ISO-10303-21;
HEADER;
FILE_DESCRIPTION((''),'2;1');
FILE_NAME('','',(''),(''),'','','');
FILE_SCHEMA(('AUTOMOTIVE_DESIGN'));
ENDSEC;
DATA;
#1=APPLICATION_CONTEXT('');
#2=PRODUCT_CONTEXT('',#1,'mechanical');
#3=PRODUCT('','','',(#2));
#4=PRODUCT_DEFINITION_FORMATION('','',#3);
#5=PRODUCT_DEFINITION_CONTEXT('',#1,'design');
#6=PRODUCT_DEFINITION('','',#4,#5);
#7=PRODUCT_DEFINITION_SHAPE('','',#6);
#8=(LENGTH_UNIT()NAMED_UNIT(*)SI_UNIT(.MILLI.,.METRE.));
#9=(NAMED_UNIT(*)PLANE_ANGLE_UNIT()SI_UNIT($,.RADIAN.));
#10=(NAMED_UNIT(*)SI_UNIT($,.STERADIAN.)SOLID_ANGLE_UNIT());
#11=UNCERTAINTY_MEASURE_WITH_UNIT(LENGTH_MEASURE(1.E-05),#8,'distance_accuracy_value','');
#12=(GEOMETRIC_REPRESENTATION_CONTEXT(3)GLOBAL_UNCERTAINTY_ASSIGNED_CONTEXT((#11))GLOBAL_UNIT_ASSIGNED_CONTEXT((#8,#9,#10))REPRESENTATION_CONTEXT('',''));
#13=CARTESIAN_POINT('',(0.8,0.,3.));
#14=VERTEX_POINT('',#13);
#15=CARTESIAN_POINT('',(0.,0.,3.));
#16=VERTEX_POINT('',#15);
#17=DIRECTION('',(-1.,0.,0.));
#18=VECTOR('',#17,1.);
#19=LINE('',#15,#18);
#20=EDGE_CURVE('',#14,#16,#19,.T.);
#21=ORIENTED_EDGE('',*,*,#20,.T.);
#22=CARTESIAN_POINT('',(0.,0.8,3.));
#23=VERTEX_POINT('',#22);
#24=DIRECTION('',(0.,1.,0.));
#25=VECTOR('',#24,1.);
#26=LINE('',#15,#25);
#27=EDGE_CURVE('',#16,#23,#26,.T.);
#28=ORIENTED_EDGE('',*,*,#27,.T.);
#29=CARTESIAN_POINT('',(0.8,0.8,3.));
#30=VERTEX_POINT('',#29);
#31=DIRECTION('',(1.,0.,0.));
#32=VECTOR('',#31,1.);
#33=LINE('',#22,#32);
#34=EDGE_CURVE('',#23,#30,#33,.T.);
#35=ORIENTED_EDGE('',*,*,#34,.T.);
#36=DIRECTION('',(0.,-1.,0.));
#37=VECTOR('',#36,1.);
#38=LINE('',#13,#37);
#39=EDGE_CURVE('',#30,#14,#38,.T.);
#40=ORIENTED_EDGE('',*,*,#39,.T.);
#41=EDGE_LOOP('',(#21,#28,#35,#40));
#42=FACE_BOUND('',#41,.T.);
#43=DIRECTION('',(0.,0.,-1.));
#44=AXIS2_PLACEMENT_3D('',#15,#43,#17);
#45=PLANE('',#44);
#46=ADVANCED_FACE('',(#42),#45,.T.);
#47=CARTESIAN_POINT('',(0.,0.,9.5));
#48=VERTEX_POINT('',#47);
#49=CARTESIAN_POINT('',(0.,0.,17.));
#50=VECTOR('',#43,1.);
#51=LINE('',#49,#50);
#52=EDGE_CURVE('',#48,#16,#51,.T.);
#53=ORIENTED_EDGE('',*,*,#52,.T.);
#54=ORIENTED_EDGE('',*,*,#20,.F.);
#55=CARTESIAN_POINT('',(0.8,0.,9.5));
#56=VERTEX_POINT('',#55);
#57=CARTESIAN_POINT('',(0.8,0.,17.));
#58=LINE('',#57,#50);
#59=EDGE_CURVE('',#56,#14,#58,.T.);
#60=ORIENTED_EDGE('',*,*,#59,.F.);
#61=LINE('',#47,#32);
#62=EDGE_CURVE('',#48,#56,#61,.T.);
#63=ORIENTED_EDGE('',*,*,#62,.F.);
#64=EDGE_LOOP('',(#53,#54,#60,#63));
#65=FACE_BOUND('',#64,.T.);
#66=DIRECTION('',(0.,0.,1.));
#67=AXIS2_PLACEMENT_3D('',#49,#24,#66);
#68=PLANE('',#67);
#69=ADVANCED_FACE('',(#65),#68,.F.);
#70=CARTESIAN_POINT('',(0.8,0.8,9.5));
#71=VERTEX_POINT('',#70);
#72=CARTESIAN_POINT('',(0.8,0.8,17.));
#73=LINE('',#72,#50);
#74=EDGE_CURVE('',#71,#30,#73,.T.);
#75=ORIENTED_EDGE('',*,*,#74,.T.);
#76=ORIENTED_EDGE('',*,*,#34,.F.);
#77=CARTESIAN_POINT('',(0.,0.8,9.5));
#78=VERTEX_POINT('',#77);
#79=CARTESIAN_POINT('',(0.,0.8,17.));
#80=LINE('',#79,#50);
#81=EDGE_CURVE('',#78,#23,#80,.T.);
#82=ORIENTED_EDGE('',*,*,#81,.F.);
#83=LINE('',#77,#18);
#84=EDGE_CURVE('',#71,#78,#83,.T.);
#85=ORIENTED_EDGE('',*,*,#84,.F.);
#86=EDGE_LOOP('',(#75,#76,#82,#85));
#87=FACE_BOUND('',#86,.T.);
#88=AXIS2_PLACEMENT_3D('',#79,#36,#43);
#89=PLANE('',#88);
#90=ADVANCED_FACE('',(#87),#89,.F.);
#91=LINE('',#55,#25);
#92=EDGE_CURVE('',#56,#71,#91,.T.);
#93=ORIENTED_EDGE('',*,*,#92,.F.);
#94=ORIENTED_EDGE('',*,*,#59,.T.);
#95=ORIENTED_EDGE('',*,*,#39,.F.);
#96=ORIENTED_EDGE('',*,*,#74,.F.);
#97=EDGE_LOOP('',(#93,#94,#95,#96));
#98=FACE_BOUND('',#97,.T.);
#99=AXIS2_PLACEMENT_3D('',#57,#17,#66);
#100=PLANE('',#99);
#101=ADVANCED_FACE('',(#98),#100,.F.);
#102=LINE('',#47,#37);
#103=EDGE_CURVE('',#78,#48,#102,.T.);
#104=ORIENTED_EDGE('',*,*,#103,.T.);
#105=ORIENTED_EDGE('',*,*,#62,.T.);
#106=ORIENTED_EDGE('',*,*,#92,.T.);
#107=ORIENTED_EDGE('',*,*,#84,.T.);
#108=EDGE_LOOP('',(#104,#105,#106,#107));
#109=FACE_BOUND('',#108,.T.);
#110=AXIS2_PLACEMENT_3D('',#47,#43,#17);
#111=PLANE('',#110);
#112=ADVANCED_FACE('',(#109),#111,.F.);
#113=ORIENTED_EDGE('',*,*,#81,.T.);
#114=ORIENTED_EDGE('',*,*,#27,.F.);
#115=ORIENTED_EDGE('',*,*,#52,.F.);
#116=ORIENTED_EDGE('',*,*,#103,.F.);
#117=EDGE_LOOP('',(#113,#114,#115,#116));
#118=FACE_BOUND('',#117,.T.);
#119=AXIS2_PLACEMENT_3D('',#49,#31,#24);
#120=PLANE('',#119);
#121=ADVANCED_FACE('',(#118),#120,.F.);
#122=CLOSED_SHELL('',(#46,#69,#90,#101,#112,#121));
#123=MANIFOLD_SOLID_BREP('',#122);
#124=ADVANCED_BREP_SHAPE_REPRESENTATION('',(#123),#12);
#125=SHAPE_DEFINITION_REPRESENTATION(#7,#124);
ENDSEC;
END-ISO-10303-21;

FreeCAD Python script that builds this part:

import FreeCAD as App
import Part
import Sketcher

V = App.Vector


def add_polygon(sketch, points):
    """Adds a closed chain of lines whose ends are joined by coincident constraints."""
    first, n = sketch.GeometryCount, len(points)
    for a, b in zip(points, points[1:] + points[:1]):
        sketch.addGeometry(Part.LineSegment(App.Vector(*a, 0), App.Vector(*b, 0)), False)
    for i in range(n):
        sketch.addConstraint(Sketcher.Constraint("Coincident", first + i, 2, first + (i + 1) % n, 1))

doc = App.newDocument("Part")
params = doc.addObject("Spreadsheet::Sheet", "Params")
for row, (alias, value) in enumerate([
    ("sketch1_width", "0.8 mm"),
    ("pad1_length", "17 mm"),
    ("sketch2_width", "0.8 mm"),
    ("pocket1_length", "3 mm"),
    ("sketch3_width", "0.8 mm"),
    ("pocket2_length", "7.5 mm"),
], start=1):
    params.set(f"A{row}", alias)
    params.set(f"B{row}", "=" + value)
    params.setAlias(f"B{row}", alias)

body = doc.addObject("PartDesign::Body", "Body")

sketch1 = body.newObject("Sketcher::SketchObject", "Sketch")
sketch1.AttachmentSupport = (doc.getObject("XY_Plane"), [""])
sketch1.MapMode = "FlatFace"
add_polygon(sketch1, [(0, 0.8), (0, 0), (0.8, 0), (0.8, 0.8)])
sketch1.addConstraint([
    Sketcher.Constraint("Vertical", 0),
    Sketcher.Constraint("Horizontal", 1),
    Sketcher.Constraint("Vertical", 2),
    Sketcher.Constraint("Horizontal", 3),
    Sketcher.Constraint("Coincident", 0, 2, -1, 1),
    Sketcher.Constraint("Equal", 3, 0),
    Sketcher.Constraint("DistanceX", 1, 1, 1, 2, 0.8),
])
sketch1.setExpression("Constraints[10]", "Params.sketch1_width")
pad1 = body.newObject("PartDesign::Pad", "Pad")
pad1.Profile = sketch1
pad1.setExpression("Length", "Params.pad1_length")

sketch2 = body.newObject("Sketcher::SketchObject", "Sketch001")
sketch2.AttachmentSupport = (doc.getObject("XY_Plane"), [""])
sketch2.MapMode = "FlatFace"
add_polygon(sketch2, [(0.8, 0.8), (0.8, 0), (0, 0), (0, 0.8)])
sketch2.addConstraint([
    Sketcher.Constraint("Vertical", 0),
    Sketcher.Constraint("Horizontal", 1),
    Sketcher.Constraint("Vertical", 2),
    Sketcher.Constraint("Horizontal", 3),
    Sketcher.Constraint("Coincident", 1, 2, -1, 1),
    Sketcher.Constraint("Equal", 3, 0),
    Sketcher.Constraint("DistanceX", 1, 2, 1, 1, 0.8),
])
sketch2.setExpression("Constraints[10]", "Params.sketch2_width")
pocket1 = body.newObject("PartDesign::Pocket", "Pocket")
pocket1.Profile = sketch2
pocket1.setExpression("Length", "Params.pocket1_length")
pocket1.Reversed = True

sketch3 = body.newObject("Sketcher::SketchObject", "Sketch002")
sketch3.AttachmentSupport = (doc.getObject("XY_Plane"), [""])
sketch3.MapMode = "FlatFace"
sketch3.AttachmentOffset = App.Placement(V(0, 0, 17), App.Rotation())
add_polygon(sketch3, [(0, 0.8), (0, 0), (0.8, 0), (0.8, 0.8)])
sketch3.addConstraint([
    Sketcher.Constraint("Vertical", 0),
    Sketcher.Constraint("Horizontal", 1),
    Sketcher.Constraint("Vertical", 2),
    Sketcher.Constraint("Horizontal", 3),
    Sketcher.Constraint("Coincident", 0, 2, -1, 1),
    Sketcher.Constraint("Equal", 3, 0),
    Sketcher.Constraint("DistanceX", 1, 1, 1, 2, 0.8),
])
sketch3.setExpression("Constraints[10]", "Params.sketch3_width")
pocket2 = body.newObject("PartDesign::Pocket", "Pocket001")
pocket2.Profile = sketch3
pocket2.setExpression("Length", "Params.pocket2_length")

doc.recompute()
